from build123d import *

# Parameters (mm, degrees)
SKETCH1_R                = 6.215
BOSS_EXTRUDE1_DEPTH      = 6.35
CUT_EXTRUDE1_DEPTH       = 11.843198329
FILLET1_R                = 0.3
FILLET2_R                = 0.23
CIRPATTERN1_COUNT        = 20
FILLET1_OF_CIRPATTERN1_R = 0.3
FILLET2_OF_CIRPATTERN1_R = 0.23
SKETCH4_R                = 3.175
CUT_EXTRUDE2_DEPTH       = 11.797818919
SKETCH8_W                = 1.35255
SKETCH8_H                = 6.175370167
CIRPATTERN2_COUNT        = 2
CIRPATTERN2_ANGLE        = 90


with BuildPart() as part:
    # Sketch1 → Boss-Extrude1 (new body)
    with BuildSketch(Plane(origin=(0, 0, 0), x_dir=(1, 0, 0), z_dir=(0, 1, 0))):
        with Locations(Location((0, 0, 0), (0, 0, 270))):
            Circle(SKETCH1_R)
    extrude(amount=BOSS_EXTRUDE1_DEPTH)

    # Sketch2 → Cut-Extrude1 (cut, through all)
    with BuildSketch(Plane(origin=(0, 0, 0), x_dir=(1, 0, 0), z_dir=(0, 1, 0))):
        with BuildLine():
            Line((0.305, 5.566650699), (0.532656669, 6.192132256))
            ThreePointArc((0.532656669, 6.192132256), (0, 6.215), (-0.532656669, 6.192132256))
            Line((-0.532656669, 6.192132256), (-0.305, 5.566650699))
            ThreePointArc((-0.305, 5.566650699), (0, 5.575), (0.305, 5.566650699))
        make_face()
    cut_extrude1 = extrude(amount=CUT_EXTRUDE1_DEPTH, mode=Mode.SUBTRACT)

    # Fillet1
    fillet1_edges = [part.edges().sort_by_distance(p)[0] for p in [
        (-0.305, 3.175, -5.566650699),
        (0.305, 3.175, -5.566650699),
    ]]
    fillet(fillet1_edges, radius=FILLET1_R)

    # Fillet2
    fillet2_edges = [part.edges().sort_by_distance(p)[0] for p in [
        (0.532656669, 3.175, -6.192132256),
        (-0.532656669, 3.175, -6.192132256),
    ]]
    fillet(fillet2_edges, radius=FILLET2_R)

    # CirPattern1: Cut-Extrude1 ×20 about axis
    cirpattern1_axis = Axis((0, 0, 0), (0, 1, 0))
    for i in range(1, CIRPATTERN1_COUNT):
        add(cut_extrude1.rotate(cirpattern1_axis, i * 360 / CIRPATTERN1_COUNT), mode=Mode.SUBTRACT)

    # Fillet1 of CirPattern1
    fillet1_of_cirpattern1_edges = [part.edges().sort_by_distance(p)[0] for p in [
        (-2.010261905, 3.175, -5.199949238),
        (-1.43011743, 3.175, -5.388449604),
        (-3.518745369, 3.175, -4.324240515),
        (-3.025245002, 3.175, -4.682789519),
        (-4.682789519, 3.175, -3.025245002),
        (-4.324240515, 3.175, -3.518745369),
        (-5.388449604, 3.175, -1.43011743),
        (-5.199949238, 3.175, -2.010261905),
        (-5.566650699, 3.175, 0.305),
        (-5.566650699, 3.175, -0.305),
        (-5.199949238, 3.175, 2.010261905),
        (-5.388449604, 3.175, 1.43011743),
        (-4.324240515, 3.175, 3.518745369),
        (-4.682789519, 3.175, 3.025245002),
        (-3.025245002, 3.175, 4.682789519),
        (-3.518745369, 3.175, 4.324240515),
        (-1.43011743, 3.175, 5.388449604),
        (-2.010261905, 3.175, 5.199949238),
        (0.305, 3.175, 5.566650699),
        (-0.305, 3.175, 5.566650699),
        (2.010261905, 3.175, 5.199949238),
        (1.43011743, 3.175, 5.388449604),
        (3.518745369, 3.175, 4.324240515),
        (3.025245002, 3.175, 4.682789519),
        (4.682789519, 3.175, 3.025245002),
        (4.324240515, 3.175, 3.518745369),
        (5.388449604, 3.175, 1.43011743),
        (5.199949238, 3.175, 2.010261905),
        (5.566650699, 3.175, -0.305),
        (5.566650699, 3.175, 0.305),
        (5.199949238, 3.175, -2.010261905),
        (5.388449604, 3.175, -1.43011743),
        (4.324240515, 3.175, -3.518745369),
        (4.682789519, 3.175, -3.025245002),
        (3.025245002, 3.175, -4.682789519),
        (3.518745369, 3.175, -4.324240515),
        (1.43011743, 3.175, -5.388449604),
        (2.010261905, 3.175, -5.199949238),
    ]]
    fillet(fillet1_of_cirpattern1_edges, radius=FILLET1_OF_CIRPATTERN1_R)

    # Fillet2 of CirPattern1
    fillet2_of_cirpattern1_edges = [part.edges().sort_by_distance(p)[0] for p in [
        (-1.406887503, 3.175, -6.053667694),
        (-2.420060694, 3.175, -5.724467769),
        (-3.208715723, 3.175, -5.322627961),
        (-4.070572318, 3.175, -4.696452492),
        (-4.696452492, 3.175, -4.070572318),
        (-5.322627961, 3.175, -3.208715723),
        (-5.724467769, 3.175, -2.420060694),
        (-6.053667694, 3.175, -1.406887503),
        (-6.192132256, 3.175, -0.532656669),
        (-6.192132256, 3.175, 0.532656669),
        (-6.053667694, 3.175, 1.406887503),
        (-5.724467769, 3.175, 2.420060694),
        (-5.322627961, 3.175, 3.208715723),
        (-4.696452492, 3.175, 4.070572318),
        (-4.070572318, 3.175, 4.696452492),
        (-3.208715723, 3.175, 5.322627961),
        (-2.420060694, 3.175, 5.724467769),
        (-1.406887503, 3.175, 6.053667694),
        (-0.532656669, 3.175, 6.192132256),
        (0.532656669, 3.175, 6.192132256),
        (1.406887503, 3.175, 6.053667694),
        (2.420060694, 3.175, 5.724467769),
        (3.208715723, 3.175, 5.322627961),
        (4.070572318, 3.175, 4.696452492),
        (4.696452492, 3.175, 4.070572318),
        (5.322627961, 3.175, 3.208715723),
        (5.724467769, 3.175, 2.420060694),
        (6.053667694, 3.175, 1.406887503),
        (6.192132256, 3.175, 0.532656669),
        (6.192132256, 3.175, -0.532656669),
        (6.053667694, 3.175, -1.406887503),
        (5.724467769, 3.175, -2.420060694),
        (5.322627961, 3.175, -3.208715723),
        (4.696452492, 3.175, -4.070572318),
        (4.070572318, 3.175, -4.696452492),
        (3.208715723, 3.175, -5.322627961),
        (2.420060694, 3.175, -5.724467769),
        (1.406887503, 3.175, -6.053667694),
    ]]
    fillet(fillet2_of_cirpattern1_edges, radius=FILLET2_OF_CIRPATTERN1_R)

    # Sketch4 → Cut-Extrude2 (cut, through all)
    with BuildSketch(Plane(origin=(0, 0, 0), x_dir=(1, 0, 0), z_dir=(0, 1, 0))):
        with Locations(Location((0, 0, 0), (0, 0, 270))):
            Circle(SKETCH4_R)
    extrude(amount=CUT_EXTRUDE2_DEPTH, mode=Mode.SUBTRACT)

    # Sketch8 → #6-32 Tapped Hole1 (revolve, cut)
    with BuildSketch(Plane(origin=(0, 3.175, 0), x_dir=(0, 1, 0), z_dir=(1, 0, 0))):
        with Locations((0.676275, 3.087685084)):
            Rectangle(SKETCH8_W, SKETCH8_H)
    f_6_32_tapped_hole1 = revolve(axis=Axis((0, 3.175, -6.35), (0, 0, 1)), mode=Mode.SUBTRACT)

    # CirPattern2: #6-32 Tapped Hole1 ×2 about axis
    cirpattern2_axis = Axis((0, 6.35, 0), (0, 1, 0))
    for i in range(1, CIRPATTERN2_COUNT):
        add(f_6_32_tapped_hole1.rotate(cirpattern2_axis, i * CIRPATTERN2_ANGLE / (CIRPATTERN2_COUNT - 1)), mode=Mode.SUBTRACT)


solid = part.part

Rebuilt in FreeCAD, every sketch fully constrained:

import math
import FreeCAD as App
import Part
import Sketcher
from FreeCAD import Vector
Q = App.Units.Quantity


def edges_at(feature, points):
    """Names of the edges that pass closest to the given points."""
    edges = feature.Shape.Edges
    near = lambda p: min(range(len(edges)), key=lambda i: edges[i].distToShape(Part.Vertex(*p))[0])
    return sorted({f"Edge{near(p) + 1}" for p in points})


def add_polygon(sketch, points):
    """Adds a closed chain of lines whose ends are joined by coincident constraints."""
    first, n = sketch.GeometryCount, len(points)
    for a, b in zip(points, points[1:] + points[:1]):
        sketch.addGeometry(Part.LineSegment(App.Vector(*a, 0), App.Vector(*b, 0)), False)
    for i in range(n):
        sketch.addConstraint(Sketcher.Constraint("Coincident", first + i, 2, first + (i + 1) % n, 1))

doc = App.newDocument("Part")
body = doc.addObject("PartDesign::Body", "Body")

sketch1 = doc.addObject("Sketcher::SketchObject", "Sketch")
body.addObject(sketch1)
sketch1.AttachmentSupport = (doc.XZ_Plane, [""])
sketch1.MapMode = "FlatFace"
sketch1.addGeometry(Part.Circle(Vector(0, 0, 0), Vector(0, 0, 1), 6), False)
sketch1.addConstraint([
    Sketcher.Constraint("Coincident", 0, 3, -1, 1),
    Sketcher.Constraint("Diameter", 0, 12.43),
])
pad1 = doc.addObject("PartDesign::Pad", "Pad")
body.addObject(pad1)
pad1.Profile = sketch1
pad1.Length = 6.35
pad1.Reversed = True

sketch2 = doc.addObject("Sketcher::SketchObject", "Sketch001")
body.addObject(sketch2)
sketch2.AttachmentSupport = (doc.XZ_Plane, [""])
sketch2.MapMode = "FlatFace"
sketch2.addGeometry([
    Part.LineSegment(Vector(0.3, -5.6, 0), Vector(0.5, -6.2, 0)),
    Part.ArcOfCircle(Part.Circle(Vector(0, 0, 0), Vector(0, 0, 1), 6.2), math.radians(-94.92), math.radians(-85.08)),
    Part.LineSegment(Vector(-0.5, -6.2, 0), Vector(-0.3, -5.6, 0)),
    Part.ArcOfCircle(Part.Circle(Vector(0, 0, 0), Vector(0, 0, 1), 5.6), math.radians(-93.14), math.radians(-86.86)),
], False)
sketch2.addConstraint([
    Sketcher.Constraint("Coincident", 0, 2, 1, 2),
    Sketcher.Constraint("Coincident", 1, 1, 2, 1),
    Sketcher.Constraint("Coincident", 2, 2, 3, 1),
    Sketcher.Constraint("Coincident", 3, 2, 0, 1),
    Sketcher.Constraint("Coincident", 1, 3, -1, 1),
    Sketcher.Constraint("Coincident", 3, 3, -1, 1),
    Sketcher.Constraint("Horizontal", 0, 2, 1, 1),
    Sketcher.Constraint("Horizontal", 2, 2, 3, 2),
    Sketcher.Constraint("Angle", 0, Q("-70 deg")),
    Sketcher.Constraint("Radius", 1, 6.215),
    Sketcher.Constraint("Radius", 3, 5.575),
    Sketcher.Constraint("DistanceX", 2, 2, 3, 2, 0.61),
])
pocket1 = doc.addObject("PartDesign::Pocket", "Pocket")
body.addObject(pocket1)
pocket1.Profile = sketch2
pocket1.Type = "ThroughAll"
doc.recompute()

fillet = doc.addObject("PartDesign::Fillet", "Fillet")
body.addObject(fillet)
fillet.Base = (pocket1, edges_at(pocket1, [(-0.305, 3.175, -5.567), (0.305, 3.175, -5.567)]))
fillet.Radius = 0.3
doc.recompute()

fillet2 = doc.addObject("PartDesign::Fillet", "Fillet001")
body.addObject(fillet2)
fillet2.Base = (fillet, edges_at(fillet, [(0.533, 3.175, -6.192), (-0.533, 3.175, -6.192)]))
fillet2.Radius = 0.23
doc.recompute()

polarpattern = doc.addObject("PartDesign::PolarPattern", "PolarPattern")
body.addObject(polarpattern)
polarpattern.Originals = [pocket1]
polarpattern.Axis = (doc.Y_Axis, [""])
polarpattern.Angle = 360
polarpattern.Occurrences = 20
body.Tip = polarpattern
doc.recompute()

fillet3 = doc.addObject("PartDesign::Fillet", "Fillet002")
body.addObject(fillet3)
fillet3.Base = (polarpattern, edges_at(polarpattern, [
    (-2.01, 3.175, -5.2),
    (-1.43, 3.175, -5.388),
    (-3.519, 3.175, -4.324),
    (-3.025, 3.175, -4.683),
    (-4.683, 3.175, -3.025),
    (-4.324, 3.175, -3.519),
    (-5.388, 3.175, -1.43),
    (-5.2, 3.175, -2.01),
    (-5.567, 3.175, 0.305),
    (-5.567, 3.175, -0.305),
    (-5.2, 3.175, 2.01),
    (-5.388, 3.175, 1.43),
    (-4.324, 3.175, 3.519),
    (-4.683, 3.175, 3.025),
    (-3.025, 3.175, 4.683),
    (-3.519, 3.175, 4.324),
    (-1.43, 3.175, 5.388),
    (-2.01, 3.175, 5.2),
    (0.305, 3.175, 5.567),
    (-0.305, 3.175, 5.567),
    (2.01, 3.175, 5.2),
    (1.43, 3.175, 5.388),
    (3.519, 3.175, 4.324),
    (3.025, 3.175, 4.683),
    (4.683, 3.175, 3.025),
    (4.324, 3.175, 3.519),
    (5.388, 3.175, 1.43),
    (5.2, 3.175, 2.01),
    (5.567, 3.175, -0.305),
    (5.567, 3.175, 0.305),
    (5.2, 3.175, -2.01),
    (5.388, 3.175, -1.43),
    (4.324, 3.175, -3.519),
    (4.683, 3.175, -3.025),
    (3.025, 3.175, -4.683),
    (3.519, 3.175, -4.324),
    (1.43, 3.175, -5.388),
    (2.01, 3.175, -5.2),
]))
fillet3.Radius = 0.3
doc.recompute()

fillet4 = doc.addObject("PartDesign::Fillet", "Fillet003")
body.addObject(fillet4)
fillet4.Base = (fillet3, edges_at(fillet3, [
    (-1.407, 3.175, -6.054),
    (-2.42, 3.175, -5.724),
    (-3.209, 3.175, -5.323),
    (-4.071, 3.175, -4.696),
    (-4.696, 3.175, -4.071),
    (-5.323, 3.175, -3.209),
    (-5.724, 3.175, -2.42),
    (-6.054, 3.175, -1.407),
    (-6.192, 3.175, -0.533),
    (-6.192, 3.175, 0.533),
    (-6.054, 3.175, 1.407),
    (-5.724, 3.175, 2.42),
    (-5.323, 3.175, 3.209),
    (-4.696, 3.175, 4.071),
    (-4.071, 3.175, 4.696),
    (-3.209, 3.175, 5.323),
    (-2.42, 3.175, 5.724),
    (-1.407, 3.175, 6.054),
    (-0.533, 3.175, 6.192),
    (0.533, 3.175, 6.192),
    (1.407, 3.175, 6.054),
    (2.42, 3.175, 5.724),
    (3.209, 3.175, 5.323),
    (4.071, 3.175, 4.696),
    (4.696, 3.175, 4.071),
    (5.323, 3.175, 3.209),
    (5.724, 3.175, 2.42),
    (6.054, 3.175, 1.407),
    (6.192, 3.175, 0.533),
    (6.192, 3.175, -0.533),
    (6.054, 3.175, -1.407),
    (5.724, 3.175, -2.42),
    (5.323, 3.175, -3.209),
    (4.696, 3.175, -4.071),
    (4.071, 3.175, -4.696),
    (3.209, 3.175, -5.323),
    (2.42, 3.175, -5.724),
    (1.407, 3.175, -6.054),
]))
fillet4.Radius = 0.23

sketch3 = doc.addObject("Sketcher::SketchObject", "Sketch002")
body.addObject(sketch3)
sketch3.AttachmentSupport = (doc.XZ_Plane, [""])
sketch3.MapMode = "FlatFace"
sketch3.addGeometry(Part.Circle(Vector(0, 0, 0), Vector(0, 0, 1), 3.2), False)
sketch3.addConstraint([
    Sketcher.Constraint("Coincident", 0, 3, -1, 1),
    Sketcher.Constraint("Diameter", 0, 6.35),
])
pocket2 = doc.addObject("PartDesign::Pocket", "Pocket001")
body.addObject(pocket2)
pocket2.Profile = sketch3
pocket2.Type = "ThroughAll"

sketch4 = doc.addObject("Sketcher::SketchObject", "Sketch003")
body.addObject(sketch4)
sketch4.AttachmentSupport = (doc.YZ_Plane, [""])
sketch4.MapMode = "FlatFace"
add_polygon(sketch4, [(3.2, 6.2), (3.2, 0), (4.5, 0), (4.5, 6.2)])
sketch4.addGeometry(Part.LineSegment(Vector(3.2, 0, 0), Vector(3.2, 6.2, 0)), True)
sketch4.addConstraint([
    Sketcher.Constraint("Vertical", 0),
    Sketcher.Constraint("Horizontal", 1),
    Sketcher.Constraint("Vertical", 2),
    Sketcher.Constraint("Horizontal", 3),
    Sketcher.Constraint("Vertical", 4),
    Sketcher.Constraint("Coincident", 4, 1, 0, 2),
    Sketcher.Constraint("PointOnObject", 0, 2, -1),
    Sketcher.Constraint("Horizontal", 2, 2, 4, 2),
    Sketcher.Constraint("DistanceX", -1, 1, 0, 2, 3.175),
    Sketcher.Constraint("DistanceX", 1, 1, 1, 2, 1.35255),
    Sketcher.Constraint("DistanceY", 0, 2, 0, 1, 6.17537),
])
groove = doc.addObject("PartDesign::Groove", "Groove")
body.addObject(groove)
groove.Profile = sketch4
groove.ReferenceAxis = (sketch4, ["Axis0"])
groove.Angle = 360
doc.recompute()

polarpattern2 = doc.addObject("PartDesign::PolarPattern", "PolarPattern001")
body.addObject(polarpattern2)
polarpattern2.Originals = [groove]
polarpattern2.Axis = (doc.Y_Axis, [""])
polarpattern2.Angle = 90
polarpattern2.Occurrences = 2
body.Tip = polarpattern2

doc.recompute()
